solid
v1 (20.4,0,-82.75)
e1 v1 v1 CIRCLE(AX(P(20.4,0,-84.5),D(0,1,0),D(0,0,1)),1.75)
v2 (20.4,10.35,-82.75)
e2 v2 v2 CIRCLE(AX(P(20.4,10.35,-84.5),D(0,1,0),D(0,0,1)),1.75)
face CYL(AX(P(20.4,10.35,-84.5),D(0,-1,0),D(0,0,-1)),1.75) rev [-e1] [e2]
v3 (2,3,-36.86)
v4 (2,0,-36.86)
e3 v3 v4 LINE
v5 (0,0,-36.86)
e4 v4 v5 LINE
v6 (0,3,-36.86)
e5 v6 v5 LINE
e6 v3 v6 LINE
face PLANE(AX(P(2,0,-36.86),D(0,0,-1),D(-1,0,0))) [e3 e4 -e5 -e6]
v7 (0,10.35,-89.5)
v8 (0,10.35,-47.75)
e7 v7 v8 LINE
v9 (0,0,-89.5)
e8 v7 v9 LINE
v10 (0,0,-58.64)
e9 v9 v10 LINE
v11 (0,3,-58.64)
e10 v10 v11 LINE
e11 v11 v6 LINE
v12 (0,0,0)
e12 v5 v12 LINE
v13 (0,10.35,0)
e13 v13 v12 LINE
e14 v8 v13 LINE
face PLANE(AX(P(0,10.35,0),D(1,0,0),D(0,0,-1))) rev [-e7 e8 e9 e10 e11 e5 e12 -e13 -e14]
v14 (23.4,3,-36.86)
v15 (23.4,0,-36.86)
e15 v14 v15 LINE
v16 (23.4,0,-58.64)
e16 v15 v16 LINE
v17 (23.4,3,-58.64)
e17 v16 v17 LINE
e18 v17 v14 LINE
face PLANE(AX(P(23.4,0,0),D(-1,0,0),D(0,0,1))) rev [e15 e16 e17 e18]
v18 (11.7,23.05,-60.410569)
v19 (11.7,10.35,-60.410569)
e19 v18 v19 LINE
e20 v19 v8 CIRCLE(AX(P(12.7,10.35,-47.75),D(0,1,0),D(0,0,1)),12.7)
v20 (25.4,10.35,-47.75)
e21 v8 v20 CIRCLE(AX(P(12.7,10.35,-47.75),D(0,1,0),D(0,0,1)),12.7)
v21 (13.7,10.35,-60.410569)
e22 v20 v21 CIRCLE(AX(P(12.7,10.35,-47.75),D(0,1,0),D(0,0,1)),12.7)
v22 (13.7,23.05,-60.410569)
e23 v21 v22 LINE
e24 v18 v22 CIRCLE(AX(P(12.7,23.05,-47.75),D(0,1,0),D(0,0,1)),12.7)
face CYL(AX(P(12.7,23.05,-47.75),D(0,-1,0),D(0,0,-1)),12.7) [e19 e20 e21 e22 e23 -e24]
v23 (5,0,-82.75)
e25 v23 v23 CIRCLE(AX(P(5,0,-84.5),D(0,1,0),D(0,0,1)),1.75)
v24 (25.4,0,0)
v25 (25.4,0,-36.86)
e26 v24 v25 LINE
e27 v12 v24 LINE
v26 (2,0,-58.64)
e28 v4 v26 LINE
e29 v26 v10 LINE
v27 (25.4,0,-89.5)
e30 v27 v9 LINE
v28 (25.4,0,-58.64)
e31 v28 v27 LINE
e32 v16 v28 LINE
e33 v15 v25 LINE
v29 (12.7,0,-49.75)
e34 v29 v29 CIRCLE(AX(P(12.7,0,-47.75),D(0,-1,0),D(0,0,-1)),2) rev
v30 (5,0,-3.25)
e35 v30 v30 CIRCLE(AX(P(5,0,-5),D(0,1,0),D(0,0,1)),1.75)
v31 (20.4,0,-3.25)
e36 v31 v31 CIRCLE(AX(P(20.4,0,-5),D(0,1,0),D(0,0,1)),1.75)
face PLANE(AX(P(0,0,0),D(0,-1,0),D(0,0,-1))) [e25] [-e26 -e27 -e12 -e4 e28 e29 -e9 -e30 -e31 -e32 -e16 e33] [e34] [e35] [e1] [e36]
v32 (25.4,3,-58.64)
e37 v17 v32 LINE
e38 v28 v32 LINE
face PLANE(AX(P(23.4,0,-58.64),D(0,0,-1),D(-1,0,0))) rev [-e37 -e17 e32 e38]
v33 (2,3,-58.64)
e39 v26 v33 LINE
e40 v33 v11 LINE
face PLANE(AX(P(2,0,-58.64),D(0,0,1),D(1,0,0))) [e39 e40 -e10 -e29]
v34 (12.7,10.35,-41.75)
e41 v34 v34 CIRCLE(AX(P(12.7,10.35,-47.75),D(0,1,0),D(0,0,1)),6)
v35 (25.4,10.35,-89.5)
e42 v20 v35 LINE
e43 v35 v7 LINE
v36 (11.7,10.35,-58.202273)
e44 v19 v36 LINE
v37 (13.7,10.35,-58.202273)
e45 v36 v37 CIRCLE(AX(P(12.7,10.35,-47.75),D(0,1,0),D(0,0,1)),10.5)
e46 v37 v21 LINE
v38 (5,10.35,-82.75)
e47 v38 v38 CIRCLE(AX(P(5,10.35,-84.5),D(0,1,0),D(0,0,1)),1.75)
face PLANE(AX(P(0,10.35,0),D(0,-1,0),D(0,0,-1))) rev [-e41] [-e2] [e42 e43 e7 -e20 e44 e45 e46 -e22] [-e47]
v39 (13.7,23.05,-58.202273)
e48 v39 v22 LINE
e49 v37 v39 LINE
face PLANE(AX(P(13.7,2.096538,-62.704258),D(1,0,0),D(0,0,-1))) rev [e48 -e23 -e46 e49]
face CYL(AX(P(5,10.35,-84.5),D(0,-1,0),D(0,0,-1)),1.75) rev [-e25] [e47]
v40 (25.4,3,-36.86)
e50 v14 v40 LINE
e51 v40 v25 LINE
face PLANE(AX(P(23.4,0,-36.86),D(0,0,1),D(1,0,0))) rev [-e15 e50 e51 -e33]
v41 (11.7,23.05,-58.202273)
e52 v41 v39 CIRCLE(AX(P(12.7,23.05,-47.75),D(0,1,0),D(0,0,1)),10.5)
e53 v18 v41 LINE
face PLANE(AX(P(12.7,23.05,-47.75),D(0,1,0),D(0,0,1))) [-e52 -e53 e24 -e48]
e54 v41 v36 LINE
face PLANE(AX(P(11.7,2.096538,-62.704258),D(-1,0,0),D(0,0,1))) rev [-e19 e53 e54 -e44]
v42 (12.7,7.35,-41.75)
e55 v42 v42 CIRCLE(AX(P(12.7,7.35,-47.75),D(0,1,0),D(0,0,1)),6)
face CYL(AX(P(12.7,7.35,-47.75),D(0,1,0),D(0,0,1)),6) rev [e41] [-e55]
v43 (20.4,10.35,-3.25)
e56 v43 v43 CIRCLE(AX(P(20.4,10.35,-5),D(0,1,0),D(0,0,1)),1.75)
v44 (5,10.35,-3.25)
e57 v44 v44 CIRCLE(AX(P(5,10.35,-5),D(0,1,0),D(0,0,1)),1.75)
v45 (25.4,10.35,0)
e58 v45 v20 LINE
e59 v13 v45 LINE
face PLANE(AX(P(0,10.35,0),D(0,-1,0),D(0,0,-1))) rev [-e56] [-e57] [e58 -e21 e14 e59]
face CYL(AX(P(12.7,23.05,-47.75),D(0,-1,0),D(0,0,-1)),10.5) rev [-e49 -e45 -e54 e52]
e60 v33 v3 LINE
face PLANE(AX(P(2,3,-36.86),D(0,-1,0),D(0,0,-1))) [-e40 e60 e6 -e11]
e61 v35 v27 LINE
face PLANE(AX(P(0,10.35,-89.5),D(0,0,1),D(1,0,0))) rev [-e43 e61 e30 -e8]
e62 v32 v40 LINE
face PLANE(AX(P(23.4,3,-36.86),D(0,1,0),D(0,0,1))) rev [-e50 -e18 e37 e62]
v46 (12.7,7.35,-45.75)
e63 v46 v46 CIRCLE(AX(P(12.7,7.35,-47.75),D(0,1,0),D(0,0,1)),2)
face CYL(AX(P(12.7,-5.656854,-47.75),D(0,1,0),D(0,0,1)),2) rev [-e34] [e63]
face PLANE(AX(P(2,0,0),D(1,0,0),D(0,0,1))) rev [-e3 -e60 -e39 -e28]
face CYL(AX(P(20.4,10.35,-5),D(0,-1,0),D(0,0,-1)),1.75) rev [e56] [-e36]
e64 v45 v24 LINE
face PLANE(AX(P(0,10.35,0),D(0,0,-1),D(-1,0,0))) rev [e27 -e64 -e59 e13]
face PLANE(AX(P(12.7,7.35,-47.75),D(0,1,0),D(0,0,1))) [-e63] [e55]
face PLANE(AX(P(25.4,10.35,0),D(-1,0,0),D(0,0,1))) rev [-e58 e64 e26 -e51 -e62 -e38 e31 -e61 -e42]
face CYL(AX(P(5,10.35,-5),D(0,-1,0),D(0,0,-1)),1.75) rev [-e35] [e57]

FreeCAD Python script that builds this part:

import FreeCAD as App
import Part
import Sketcher
from FreeCAD import Vector

doc = App.newDocument("Part")
body = doc.addObject("PartDesign::Body", "Body")

sketch1 = doc.addObject("Sketcher::SketchObject", "Sketch")
body.addObject(sketch1)
sketch1.AttachmentSupport = (doc.XZ_Plane, [""])
sketch1.MapMode = "FlatFace"
sketch1.addGeometry([
    Part.LineSegment(Vector(0, -89.5, 0), Vector(0, 0, 0)),
    Part.LineSegment(Vector(0, 0, 0), Vector(25.4, 0, 0)),
    Part.LineSegment(Vector(25.4, 0, 0), Vector(25.4, -89.5, 0)),
    Part.LineSegment(Vector(25.4, -89.5, 0), Vector(0, -89.5, 0)),
    Part.Circle(Vector(5, -5, 0), Vector(0, 0, 1), 1.8),
    Part.Circle(Vector(20.4, -5, 0), Vector(0, 0, 1), 1.8),
    Part.Circle(Vector(5, -84.5, 0), Vector(0, 0, 1), 1.8),
    Part.Circle(Vector(20.4, -84.5, 0), Vector(0, 0, 1), 1.8),
], False)
sketch1.addConstraint([
    Sketcher.Constraint("Coincident", 0, 2, 1, 1),
    Sketcher.Constraint("Coincident", 1, 2, 2, 1),
    Sketcher.Constraint("Coincident", 2, 2, 3, 1),
    Sketcher.Constraint("Coincident", 3, 2, 0, 1),
    Sketcher.Constraint("Vertical", 0),
    Sketcher.Constraint("Horizontal", 1),
    Sketcher.Constraint("Vertical", 2),
    Sketcher.Constraint("Horizontal", 3),
    Sketcher.Constraint("Coincident", 0, 2, -1, 1),
    Sketcher.Constraint("Equal", 4, 5),
    Sketcher.Constraint("Equal", 5, 6),
    Sketcher.Constraint("Equal", 6, 7),
    Sketcher.Constraint("Horizontal", 4, 3, 5, 3),
    Sketcher.Constraint("Horizontal", 6, 3, 7, 3),
    Sketcher.Constraint("Vertical", 4, 3, 6, 3),
    Sketcher.Constraint("Vertical", 5, 3, 7, 3),
    Sketcher.Constraint("Diameter", 4, 3.5),
    Sketcher.Constraint("DistanceX", 1, 1, 1, 2, 25.4),
    Sketcher.Constraint("DistanceY", 0, 1, 0, 2, 89.5),
    Sketcher.Constraint("DistanceX", -1, 1, 4, 3, 5.0),
    Sketcher.Constraint("DistanceY", 4, 3, -1, 1, 5.0),
    Sketcher.Constraint("DistanceX", 5, 3, 1, 2, 5.0),
    Sketcher.Constraint("DistanceY", 2, 2, 7, 3, 5.0),
])
pad1 = doc.addObject("PartDesign::Pad", "Pad")
body.addObject(pad1)
pad1.Profile = sketch1
pad1.Length = 10.35
pad1.Reversed = True

sketch2 = doc.addObject("Sketcher::SketchObject", "Sketch001")
body.addObject(sketch2)
sketch2.AttachmentSupport = (doc.XZ_Plane, [""])
sketch2.MapMode = "FlatFace"
sketch2.AttachmentOffset = App.Placement(Vector(0, 0, -10.35), App.Rotation())
sketch2.addGeometry([
    Part.Circle(Vector(13, -48, 0), Vector(0, 0, 1), 13),
    Part.Circle(Vector(13, -48, 0), Vector(0, 0, 1), 10),
], False)
sketch2.addConstraint([
    Sketcher.Constraint("Coincident", 1, 3, 0, 3),
    Sketcher.Constraint("Diameter", 1, 21.0),
    Sketcher.Constraint("Diameter", 0, 25.4),
    Sketcher.Constraint("DistanceX", -1, 1, 0, 3, 12.7),
    Sketcher.Constraint("DistanceY", 0, 3, -1, 1, 47.75),
])
pad2 = doc.addObject("PartDesign::Pad", "Pad001")
body.addObject(pad2)
pad2.Profile = sketch2
pad2.Length = 12.7
pad2.Reversed = True

sketch3 = doc.addObject("Sketcher::SketchObject", "Sketch002")
body.addObject(sketch3)
sketch3.AttachmentSupport = (doc.XZ_Plane, [""])
sketch3.MapMode = "FlatFace"
sketch3.AttachmentOffset = App.Placement(Vector(0, 0, -23.05), App.Rotation())
sketch3.addGeometry([
    Part.LineSegment(Vector(11.7, -62.7, 0), Vector(11.7, -54.7, 0)),
    Part.LineSegment(Vector(11.7, -54.7, 0), Vector(13.7, -54.7, 0)),
    Part.LineSegment(Vector(13.7, -54.7, 0), Vector(13.7, -62.7, 0)),
    Part.LineSegment(Vector(13.7, -62.7, 0), Vector(11.7, -62.7, 0)),
], False)
sketch3.addConstraint([
    Sketcher.Constraint("Coincident", 0, 2, 1, 1),
    Sketcher.Constraint("Coincident", 1, 2, 2, 1),
    Sketcher.Constraint("Coincident", 2, 2, 3, 1),
    Sketcher.Constraint("Coincident", 3, 2, 0, 1),
    Sketcher.Constraint("Vertical", 0),
    Sketcher.Constraint("Horizontal", 1),
    Sketcher.Constraint("Vertical", 2),
    Sketcher.Constraint("Horizontal", 3),
    Sketcher.Constraint("DistanceX", 1, 1, 1, 2, 2.0),
    Sketcher.Constraint("DistanceX", -1, 1, 0, 2, 11.7),
    Sketcher.Constraint("DistanceY", 0, 1, 0, 2, 8.007474),
    Sketcher.Constraint("DistanceY", 0, 2, -1, 1, 54.696784),
])
pocket1 = doc.addObject("PartDesign::Pocket", "Pocket")
body.addObject(pocket1)
pocket1.Profile = sketch3
pocket1.Length = 12.7
pocket1.Reversed = True

sketch4 = doc.addObject("Sketcher::SketchObject", "Sketch003")
body.addObject(sketch4)
sketch4.AttachmentSupport = (doc.XZ_Plane, [""])
sketch4.MapMode = "FlatFace"
sketch4.AttachmentOffset = App.Placement(Vector(0, 0, -10.35), App.Rotation())
sketch4.addGeometry(Part.Circle(Vector(13, -48, 0), Vector(0, 0, 1), 6), False)
sketch4.addConstraint([
    Sketcher.Constraint("Diameter", 0, 12.0),
    Sketcher.Constraint("DistanceX", -1, 1, 0, 3, 12.7),
    Sketcher.Constraint("DistanceY", 0, 3, -1, 1, 47.75),
])
pocket2 = doc.addObject("PartDesign::Pocket", "Pocket001")
body.addObject(pocket2)
pocket2.Profile = sketch4
pocket2.Length = 3
pocket2.Reversed = True

sketch5 = doc.addObject("Sketcher::SketchObject", "Sketch004")
body.addObject(sketch5)
sketch5.AttachmentSupport = (doc.XZ_Plane, [""])
sketch5.MapMode = "FlatFace"
sketch5.AttachmentOffset = App.Placement(Vector(0, 0, -7.35), App.Rotation())
sketch5.addGeometry(Part.Circle(Vector(12.7, -47.8, 0), Vector(0, 0, 1), 2), False)
sketch5.addConstraint([
    Sketcher.Constraint("Diameter", 0, 4.0),
    Sketcher.Constraint("DistanceX", -1, 1, 0, 3, 12.7),
    Sketcher.Constraint("DistanceY", 0, 3, -1, 1, 47.75),
])
pocket3 = doc.addObject("PartDesign::Pocket", "Pocket002")
body.addObject(pocket3)
pocket3.Profile = sketch5
pocket3.Length = 7.35
pocket3.Reversed = True

sketch6 = doc.addObject("Sketcher::SketchObject", "Sketch005")
body.addObject(sketch6)
sketch6.AttachmentSupport = (doc.YZ_Plane, [""])
sketch6.MapMode = "FlatFace"
sketch6.AttachmentOffset = App.Placement(Vector(0, 0, 25.4), App.Rotation())
sketch6.addGeometry([
    Part.LineSegment(Vector(3, -36.9, 0), Vector(0, -36.9, 0)),
    Part.LineSegment(Vector(0, -36.9, 0), Vector(0, -58.6, 0)),
    Part.LineSegment(Vector(0, -58.6, 0), Vector(3, -58.6, 0)),
    Part.LineSegment(Vector(3, -58.6, 0), Vector(3, -36.9, 0)),
], False)
sketch6.addConstraint([
    Sketcher.Constraint("Coincident", 0, 2, 1, 1),
    Sketcher.Constraint("Coincident", 1, 2, 2, 1),
    Sketcher.Constraint("Coincident", 2, 2, 3, 1),
    Sketcher.Constraint("Coincident", 3, 2, 0, 1),
    Sketcher.Constraint("Horizontal", 0),
    Sketcher.Constraint("Vertical", 1),
    Sketcher.Constraint("Horizontal", 2),
    Sketcher.Constraint("Vertical", 3),
    Sketcher.Constraint("PointOnObject", 0, 2, -2),
    Sketcher.Constraint("DistanceX", 0, 2, 0, 1, 3.0),
    Sketcher.Constraint("DistanceY", 1, 2, 1, 1, 21.78),
    Sketcher.Constraint("DistanceY", 0, 2, -1, 1, 36.86),
])
pocket4 = doc.addObject("PartDesign::Pocket", "Pocket003")
body.addObject(pocket4)
pocket4.Profile = sketch6
pocket4.Length = 2
doc.recompute()

datumplane = doc.addObject("PartDesign::Plane", "DatumPlane")
body.addObject(datumplane)
datumplane.AttachmentSupport = (doc.YZ_Plane, [""])
datumplane.MapMode = "FlatFace"
datumplane.AttachmentOffset = App.Placement(Vector(0, 0, 12.7), App.Rotation())
mirrored = doc.addObject("PartDesign::Mirrored", "Mirrored")
body.addObject(mirrored)
mirrored.Originals = [pocket4]
mirrored.MirrorPlane = (datumplane, [""])
body.Tip = mirrored

doc.recompute()
